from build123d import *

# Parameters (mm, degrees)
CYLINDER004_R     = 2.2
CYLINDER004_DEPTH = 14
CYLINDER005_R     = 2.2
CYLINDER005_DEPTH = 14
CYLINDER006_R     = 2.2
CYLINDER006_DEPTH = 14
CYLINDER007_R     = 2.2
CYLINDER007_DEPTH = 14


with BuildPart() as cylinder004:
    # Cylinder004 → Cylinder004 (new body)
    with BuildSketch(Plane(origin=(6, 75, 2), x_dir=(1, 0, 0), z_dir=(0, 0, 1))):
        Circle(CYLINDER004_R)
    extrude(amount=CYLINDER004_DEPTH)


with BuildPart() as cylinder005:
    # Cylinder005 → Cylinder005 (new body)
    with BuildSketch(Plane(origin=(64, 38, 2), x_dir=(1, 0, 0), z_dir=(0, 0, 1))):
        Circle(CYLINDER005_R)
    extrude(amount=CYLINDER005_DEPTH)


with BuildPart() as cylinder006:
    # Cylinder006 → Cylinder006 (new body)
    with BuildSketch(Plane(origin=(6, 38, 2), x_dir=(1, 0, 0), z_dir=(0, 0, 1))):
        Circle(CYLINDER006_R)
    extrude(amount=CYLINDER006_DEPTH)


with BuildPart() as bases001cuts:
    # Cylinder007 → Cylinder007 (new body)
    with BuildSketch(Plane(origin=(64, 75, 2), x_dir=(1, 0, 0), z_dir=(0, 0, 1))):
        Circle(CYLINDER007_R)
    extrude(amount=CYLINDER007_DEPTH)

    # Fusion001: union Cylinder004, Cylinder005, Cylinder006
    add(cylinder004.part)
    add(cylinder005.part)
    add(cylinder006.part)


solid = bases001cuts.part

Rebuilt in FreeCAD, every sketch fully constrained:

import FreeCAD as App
import Part
import Sketcher
from FreeCAD import Vector
Q = App.Units.Quantity

doc = App.newDocument("Part")
params = doc.addObject("Spreadsheet::Sheet", "Params")
for row, (alias, value) in enumerate([
    ("sketch1_diameter", "4.4 mm"),
    ("pad1_length", "14 mm"),
    ("sketch2_diameter", "4.4 mm"),
    ("pad2_length", "14 mm"),
    ("sketch3_diameter", "4.4 mm"),
    ("pad3_length", "14 mm"),
    ("sketch4_diameter", "4.4 mm"),
    ("pad4_length", "14 mm"),
], start=1):
    params.set(f"A{row}", alias)
    params.set(f"B{row}", "=" + value)
    params.setAlias(f"B{row}", alias)

body = doc.addObject("PartDesign::Body", "Body")

# Sketch on XY plane
sketch1 = doc.addObject("Sketcher::SketchObject", "Sketch")
body.addObject(sketch1)
sketch1.AttachmentSupport = (doc.XY_Plane, [""])
sketch1.MapMode = "FlatFace"
sketch1.AttachmentOffset = App.Placement(Vector(0, 0, 2), App.Rotation())
sketch1.addGeometry(Part.Circle(Vector(6, 75, 0), Vector(0, 0, 1), 2.2), False)
sketch1.addConstraint(Sketcher.Constraint("Diameter", 0, Q("4.4 mm")))
sketch1.addConstraint(Sketcher.Constraint("DistanceX", -1, 1, 0, 3, Q("6 mm")))
sketch1.addConstraint(Sketcher.Constraint("DistanceY", -1, 1, 0, 3, Q("75 mm")))
sketch1.setExpression("Constraints[0]", "Params.sketch1_diameter")
pad1 = doc.addObject("PartDesign::Pad", "Pad")
body.addObject(pad1)
pad1.Profile = sketch1
pad1.setExpression("Length", "Params.pad1_length")
body2 = doc.addObject("PartDesign::Body", "Body001")

# Sketch on XY plane
sketch2 = doc.addObject("Sketcher::SketchObject", "Sketch001")
body2.addObject(sketch2)
sketch2.AttachmentSupport = (doc.getObject("XY_Plane001"), [""])
sketch2.MapMode = "FlatFace"
sketch2.AttachmentOffset = App.Placement(Vector(0, 0, 2), App.Rotation())
sketch2.addGeometry(Part.Circle(Vector(64, 38, 0), Vector(0, 0, 1), 2.2), False)
sketch2.addConstraint(Sketcher.Constraint("Diameter", 0, Q("4.4 mm")))
sketch2.addConstraint(Sketcher.Constraint("DistanceX", -1, 1, 0, 3, Q("64 mm")))
sketch2.addConstraint(Sketcher.Constraint("DistanceY", -1, 1, 0, 3, Q("38 mm")))
sketch2.setExpression("Constraints[0]", "Params.sketch2_diameter")
pad2 = doc.addObject("PartDesign::Pad", "Pad001")
body2.addObject(pad2)
pad2.Profile = sketch2
pad2.setExpression("Length", "Params.pad2_length")
body3 = doc.addObject("PartDesign::Body", "Body002")

# Sketch on XY plane
sketch3 = doc.addObject("Sketcher::SketchObject", "Sketch002")
body3.addObject(sketch3)
sketch3.AttachmentSupport = (doc.getObject("XY_Plane002"), [""])
sketch3.MapMode = "FlatFace"
sketch3.AttachmentOffset = App.Placement(Vector(0, 0, 2), App.Rotation())
sketch3.addGeometry(Part.Circle(Vector(6, 38, 0), Vector(0, 0, 1), 2.2), False)
sketch3.addConstraint(Sketcher.Constraint("Diameter", 0, Q("4.4 mm")))
sketch3.addConstraint(Sketcher.Constraint("DistanceX", -1, 1, 0, 3, Q("6 mm")))
sketch3.addConstraint(Sketcher.Constraint("DistanceY", -1, 1, 0, 3, Q("38 mm")))
sketch3.setExpression("Constraints[0]", "Params.sketch3_diameter")
pad3 = doc.addObject("PartDesign::Pad", "Pad002")
body3.addObject(pad3)
pad3.Profile = sketch3
pad3.setExpression("Length", "Params.pad3_length")
body4 = doc.addObject("PartDesign::Body", "Body003")
body4.AllowCompound = True

# Sketch on XY plane
sketch4 = doc.addObject("Sketcher::SketchObject", "Sketch003")
body4.addObject(sketch4)
sketch4.AttachmentSupport = (doc.getObject("XY_Plane003"), [""])
sketch4.MapMode = "FlatFace"
sketch4.AttachmentOffset = App.Placement(Vector(0, 0, 2), App.Rotation())
sketch4.addGeometry(Part.Circle(Vector(64, 75, 0), Vector(0, 0, 1), 2.2), False)
sketch4.addConstraint(Sketcher.Constraint("Diameter", 0, Q("4.4 mm")))
sketch4.addConstraint(Sketcher.Constraint("DistanceX", -1, 1, 0, 3, Q("64 mm")))
sketch4.addConstraint(Sketcher.Constraint("DistanceY", -1, 1, 0, 3, Q("75 mm")))
sketch4.setExpression("Constraints[0]", "Params.sketch4_diameter")
pad4 = doc.addObject("PartDesign::Pad", "Pad003")
body4.addObject(pad4)
pad4.Profile = sketch4
pad4.setExpression("Length", "Params.pad4_length")
doc.recompute()

boolean = doc.addObject("PartDesign::Boolean", "Boolean")
body4.addObject(boolean)
boolean.Type = "Fuse"
boolean.addObjects([body])
doc.recompute()

boolean2 = doc.addObject("PartDesign::Boolean", "Boolean001")
body4.addObject(boolean2)
boolean2.Type = "Fuse"
boolean2.addObjects([body2])
doc.recompute()

boolean3 = doc.addObject("PartDesign::Boolean", "Boolean002")
body4.addObject(boolean3)
boolean3.Type = "Fuse"
boolean3.addObjects([body3])

doc.recompute()
